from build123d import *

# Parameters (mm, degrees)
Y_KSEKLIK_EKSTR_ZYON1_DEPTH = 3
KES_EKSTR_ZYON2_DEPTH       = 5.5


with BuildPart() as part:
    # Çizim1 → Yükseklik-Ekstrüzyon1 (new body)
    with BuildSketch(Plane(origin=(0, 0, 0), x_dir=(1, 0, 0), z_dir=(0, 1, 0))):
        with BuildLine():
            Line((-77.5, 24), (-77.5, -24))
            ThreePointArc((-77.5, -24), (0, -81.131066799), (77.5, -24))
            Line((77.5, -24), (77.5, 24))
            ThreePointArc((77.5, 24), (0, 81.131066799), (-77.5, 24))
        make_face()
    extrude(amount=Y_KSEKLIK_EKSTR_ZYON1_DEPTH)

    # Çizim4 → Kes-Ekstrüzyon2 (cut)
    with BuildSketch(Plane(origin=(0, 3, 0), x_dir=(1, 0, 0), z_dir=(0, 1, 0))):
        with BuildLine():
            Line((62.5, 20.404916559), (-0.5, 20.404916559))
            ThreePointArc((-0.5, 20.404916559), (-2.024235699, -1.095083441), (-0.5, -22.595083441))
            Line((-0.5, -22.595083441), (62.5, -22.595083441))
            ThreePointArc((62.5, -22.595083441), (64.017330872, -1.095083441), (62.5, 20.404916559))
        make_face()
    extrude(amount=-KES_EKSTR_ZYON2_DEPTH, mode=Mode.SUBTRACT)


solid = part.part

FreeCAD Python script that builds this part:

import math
import FreeCAD as App
import Part
import Sketcher

V = App.Vector
Q = App.Units.Quantity

doc = App.newDocument("Part")
body = doc.addObject("PartDesign::Body", "Body")

# Sketch on XZ plane
sketch1 = body.newObject("Sketcher::SketchObject", "Sketch")
sketch1.AttachmentSupport = (doc.getObject("XZ_Plane"), [""])
sketch1.MapMode = "FlatFace"
sketch1.addGeometry(Part.LineSegment(V(-77.5, -24, 0), V(-77.5, 24, 0)), False)
sketch1.addGeometry(Part.ArcOfCircle(Part.Circle(V(0, 0, 0), V(0, 0, 1), 81.131067), math.radians(17.206573), math.radians(162.793427)), False)
sketch1.addGeometry(Part.LineSegment(V(77.5, 24, 0), V(77.5, -24, 0)), False)
sketch1.addGeometry(Part.ArcOfCircle(Part.Circle(V(0, 0, 0), V(0, 0, 1), 81.131067), math.radians(-162.793427), math.radians(-17.206573)), False)
sketch1.addConstraint(Sketcher.Constraint("Coincident", 0, 2, 1, 2))
sketch1.addConstraint(Sketcher.Constraint("Coincident", 1, 1, 2, 1))
sketch1.addConstraint(Sketcher.Constraint("Coincident", 2, 2, 3, 2))
sketch1.addConstraint(Sketcher.Constraint("Coincident", 3, 1, 0, 1))
sketch1.addConstraint(Sketcher.Constraint("Vertical", 0))
sketch1.addConstraint(Sketcher.Constraint("Vertical", 2))
sketch1.addConstraint(Sketcher.Constraint("Coincident", 1, 3, -1, 1))
sketch1.addConstraint(Sketcher.Constraint("Coincident", 3, 3, -1, 1))
sketch1.addConstraint(Sketcher.Constraint("Equal", 1, 3))
sketch1.addConstraint(Sketcher.Constraint("Horizontal", 0, 2, 1, 1))
sketch1.addConstraint(Sketcher.Constraint("DistanceY", 0, 1, 0, 2, Q("48 mm")))
sketch1.addConstraint(Sketcher.Constraint("DistanceX", 0, 2, 1, 1, Q("155 mm")))
pad1 = body.newObject("PartDesign::Pad", "Pad")
pad1.Profile = sketch1
pad1.Length = 3
pad1.Reversed = True

# Sketch on XZ plane
sketch2 = body.newObject("Sketcher::SketchObject", "Sketch001")
sketch2.AttachmentSupport = (doc.getObject("XZ_Plane"), [""])
sketch2.MapMode = "FlatFace"
sketch2.AttachmentOffset = App.Placement(V(0, 0, -3), App.Rotation())
sketch2.addGeometry(Part.LineSegment(V(62.5, -20.404917, 0), V(-0.5, -20.404917, 0)), False)
sketch2.addGeometry(Part.ArcOfCircle(Part.Circle(V(150.371255, 1.095083, 0), V(0, 0, 1), 152.395491), math.radians(171.889637), math.radians(188.110363)), False)
sketch2.addGeometry(Part.LineSegment(V(-0.5, 22.595083, 0), V(62.5, 22.595083, 0)), False)
sketch2.addGeometry(Part.ArcOfCircle(Part.Circle(V(-89.064736, 1.095083, 0), V(0, 0, 1), 153.082067), math.radians(-8.073744), math.radians(8.073744)), False)
sketch2.addConstraint(Sketcher.Constraint("Coincident", 0, 2, 1, 2))
sketch2.addConstraint(Sketcher.Constraint("Coincident", 1, 1, 2, 1))
sketch2.addConstraint(Sketcher.Constraint("Coincident", 2, 2, 3, 2))
sketch2.addConstraint(Sketcher.Constraint("Coincident", 3, 1, 0, 1))
sketch2.addConstraint(Sketcher.Constraint("Horizontal", 0))
sketch2.addConstraint(Sketcher.Constraint("Horizontal", 2))
sketch2.addConstraint(Sketcher.Constraint("Horizontal", 1, 3, 3, 3))
sketch2.addConstraint(Sketcher.Constraint("Vertical", 0, 2, 1, 1))
sketch2.addConstraint(Sketcher.Constraint("DistanceX", 0, 2, 0, 1, Q("63 mm")))
sketch2.addConstraint(Sketcher.Constraint("DistanceY", 0, 2, 1, 1, Q("43 mm")))
sketch2.addConstraint(Sketcher.Constraint("DistanceX", 0, 2, -1, 1, Q("0.5 mm")))
sketch2.addConstraint(Sketcher.Constraint("Radius", 1, Q("152.395491 mm")))
sketch2.addConstraint(Sketcher.Constraint("Radius", 3, Q("153.082067 mm")))
sketch2.addConstraint(Sketcher.Constraint("DistanceY", -1, 1, 1, 3, Q("1.095083 mm")))
pocket1 = body.newObject("PartDesign::Pocket", "Pocket")
pocket1.Profile = sketch2
pocket1.Length = 5.5
pocket1.Reversed = True

doc.recompute()
